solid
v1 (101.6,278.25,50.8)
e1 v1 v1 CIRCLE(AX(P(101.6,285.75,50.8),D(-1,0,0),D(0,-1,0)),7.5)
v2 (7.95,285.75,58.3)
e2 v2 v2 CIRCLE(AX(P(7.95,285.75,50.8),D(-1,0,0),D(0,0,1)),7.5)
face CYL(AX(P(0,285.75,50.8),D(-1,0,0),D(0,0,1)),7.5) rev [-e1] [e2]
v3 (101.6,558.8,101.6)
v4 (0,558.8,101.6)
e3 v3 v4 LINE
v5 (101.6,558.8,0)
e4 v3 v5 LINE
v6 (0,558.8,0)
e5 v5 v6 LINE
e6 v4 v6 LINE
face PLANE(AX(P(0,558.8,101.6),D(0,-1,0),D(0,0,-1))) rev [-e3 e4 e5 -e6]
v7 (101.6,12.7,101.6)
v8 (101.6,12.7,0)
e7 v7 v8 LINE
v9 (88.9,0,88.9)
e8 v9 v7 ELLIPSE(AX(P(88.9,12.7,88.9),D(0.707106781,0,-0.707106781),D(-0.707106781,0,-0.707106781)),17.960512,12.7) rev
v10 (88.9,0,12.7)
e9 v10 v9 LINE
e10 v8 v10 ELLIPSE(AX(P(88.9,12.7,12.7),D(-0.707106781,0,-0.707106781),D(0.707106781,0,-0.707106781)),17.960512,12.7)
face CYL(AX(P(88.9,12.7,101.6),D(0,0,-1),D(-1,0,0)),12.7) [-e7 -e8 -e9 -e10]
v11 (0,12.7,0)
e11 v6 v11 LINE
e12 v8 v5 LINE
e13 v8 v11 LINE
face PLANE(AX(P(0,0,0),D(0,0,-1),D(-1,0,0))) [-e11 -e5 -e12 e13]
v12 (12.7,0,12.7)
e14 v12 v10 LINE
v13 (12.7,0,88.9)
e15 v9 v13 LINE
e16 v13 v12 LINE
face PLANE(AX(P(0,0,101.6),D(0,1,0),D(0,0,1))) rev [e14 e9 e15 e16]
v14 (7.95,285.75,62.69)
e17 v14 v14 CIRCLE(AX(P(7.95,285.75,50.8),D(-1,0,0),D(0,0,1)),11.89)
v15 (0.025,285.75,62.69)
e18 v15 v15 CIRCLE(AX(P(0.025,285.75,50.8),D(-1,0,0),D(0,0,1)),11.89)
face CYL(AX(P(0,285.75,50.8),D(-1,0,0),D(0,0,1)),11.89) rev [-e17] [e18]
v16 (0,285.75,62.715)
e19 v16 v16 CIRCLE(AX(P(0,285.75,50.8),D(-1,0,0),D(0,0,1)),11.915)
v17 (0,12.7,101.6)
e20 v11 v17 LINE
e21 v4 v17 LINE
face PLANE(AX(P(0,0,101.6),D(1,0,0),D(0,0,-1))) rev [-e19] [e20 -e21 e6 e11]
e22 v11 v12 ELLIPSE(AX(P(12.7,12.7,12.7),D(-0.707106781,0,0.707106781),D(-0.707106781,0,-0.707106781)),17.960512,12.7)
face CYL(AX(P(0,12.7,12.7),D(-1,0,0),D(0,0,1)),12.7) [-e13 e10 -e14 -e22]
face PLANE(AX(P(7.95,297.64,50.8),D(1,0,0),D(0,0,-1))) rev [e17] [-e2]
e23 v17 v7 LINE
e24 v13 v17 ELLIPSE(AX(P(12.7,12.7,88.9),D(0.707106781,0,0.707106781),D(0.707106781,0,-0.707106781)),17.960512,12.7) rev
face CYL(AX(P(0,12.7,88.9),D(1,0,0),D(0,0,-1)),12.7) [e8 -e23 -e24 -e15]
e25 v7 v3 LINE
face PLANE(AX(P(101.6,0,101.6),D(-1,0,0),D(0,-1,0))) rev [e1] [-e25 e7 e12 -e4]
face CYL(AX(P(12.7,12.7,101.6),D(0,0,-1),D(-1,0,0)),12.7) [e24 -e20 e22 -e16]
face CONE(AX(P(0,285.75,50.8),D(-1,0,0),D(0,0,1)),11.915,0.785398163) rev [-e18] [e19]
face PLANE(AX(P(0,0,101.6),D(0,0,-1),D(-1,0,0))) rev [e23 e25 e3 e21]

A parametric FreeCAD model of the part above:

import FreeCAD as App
import Part
import Sketcher

V = App.Vector
Q = App.Units.Quantity


def edges_at(feature, points):
    """Names of the edges that pass closest to the given points."""
    edges = feature.Shape.Edges
    near = lambda p: min(range(len(edges)), key=lambda i: edges[i].distToShape(Part.Vertex(*p))[0])
    return sorted({f"Edge{near(p) + 1}" for p in points})


def add_polygon(sketch, points):
    """Adds a closed chain of lines whose ends are joined by coincident constraints."""
    first, n = sketch.GeometryCount, len(points)
    for a, b in zip(points, points[1:] + points[:1]):
        sketch.addGeometry(Part.LineSegment(App.Vector(*a, 0), App.Vector(*b, 0)), False)
    for i in range(n):
        sketch.addConstraint(Sketcher.Constraint("Coincident", first + i, 2, first + (i + 1) % n, 1))

doc = App.newDocument("Part")
params = doc.addObject("Spreadsheet::Sheet", "Params")
for row, (alias, value) in enumerate([
    ("sketch1_width", "4 in"),
    ("sketch1_height", "22 in"),
    ("pad1_length", "4 in"),
    ("fillet_radius", "0.5 in"),
    ("sketch2_width", "4 in"),
    ("groove_angle", "360 deg"),
], start=1):
    params.set(f"A{row}", alias)
    params.set(f"B{row}", "=" + value)
    params.setAlias(f"B{row}", alias)

body = doc.addObject("PartDesign::Body", "Body")

# Sketch on XY plane
sketch1 = body.newObject("Sketcher::SketchObject", "Sketch")
sketch1.AttachmentSupport = (doc.getObject("XY_Plane"), [""])
sketch1.MapMode = "FlatFace"
add_polygon(sketch1, [(0, 559), (0, 0), (102, 0), (102, 559)])  # lines 0-3
sketch1.addConstraint(Sketcher.Constraint("Vertical", 0))
sketch1.addConstraint(Sketcher.Constraint("Horizontal", 1))
sketch1.addConstraint(Sketcher.Constraint("Vertical", 2))
sketch1.addConstraint(Sketcher.Constraint("Horizontal", 3))
sketch1.addConstraint(Sketcher.Constraint("Coincident", 0, 2, -1, 1))
sketch1.addConstraint(Sketcher.Constraint("DistanceX", 1, 1, 1, 2, Q("4 in")))
sketch1.addConstraint(Sketcher.Constraint("DistanceY", 0, 2, 0, 1, Q("22 in")))
sketch1.setExpression("Constraints[9]", "Params.sketch1_width")
sketch1.setExpression("Constraints[10]", "Params.sketch1_height")
pad1 = body.newObject("PartDesign::Pad", "Pad")
pad1.Profile = sketch1
pad1.setExpression("Length", "Params.pad1_length")
doc.recompute()

fillet = body.newObject("PartDesign::Fillet", "Fillet")
fillet.Base = (pad1, edges_at(pad1, [
    (50.8, 0, 0),
    (101.6, 0, 50.8),
    (0, 0, 50.8),
    (50.8, 0, 101.6),
]))
fillet.setExpression("Radius", "Params.fillet_radius")

# Sketch on XZ plane
sketch2 = body.newObject("Sketcher::SketchObject", "Sketch001")
sketch2.AttachmentSupport = (doc.getObject("XZ_Plane"), [""])
sketch2.MapMode = "FlatFace"
sketch2.AttachmentOffset = App.Placement(V(0, 0, -11.25 * 25.4), App.Rotation())
add_polygon(sketch2, [(101.6, 50.8), (0, 50.8), (0, 62.715), (0.025, 62.69), (7.95, 62.69), (7.95, 58.3), (101.6, 58.3)])  # lines 0-6
sketch2.addGeometry(Part.LineSegment(V(0, 50.8, 0), V(101.6, 50.8, 0)), True)  # axis
sketch2.addConstraint(Sketcher.Constraint("Horizontal", 0))
sketch2.addConstraint(Sketcher.Constraint("Vertical", 1))
sketch2.addConstraint(Sketcher.Constraint("Horizontal", 3))
sketch2.addConstraint(Sketcher.Constraint("Vertical", 4))
sketch2.addConstraint(Sketcher.Constraint("Horizontal", 5))
sketch2.addConstraint(Sketcher.Constraint("Vertical", 6))
sketch2.addConstraint(Sketcher.Constraint("Horizontal", 7))
sketch2.addConstraint(Sketcher.Constraint("Coincident", 7, 1, 0, 2))
sketch2.addConstraint(Sketcher.Constraint("PointOnObject", 0, 2, -2))
sketch2.addConstraint(Sketcher.Constraint("Vertical", 5, 2, 7, 2))
sketch2.addConstraint(Sketcher.Constraint("DistanceX", 0, 2, 0, 1, Q("4 in")))
sketch2.addConstraint(Sketcher.Constraint("DistanceY", -1, 1, 0, 2, Q("2 in")))
sketch2.addConstraint(Sketcher.Constraint("Angle", 2, Q("-45 deg")))
sketch2.addConstraint(Sketcher.Constraint("DistanceX", 3, 1, 3, 2, Q("7.925 mm")))
sketch2.addConstraint(Sketcher.Constraint("DistanceX", 5, 1, 5, 2, Q("93.65 mm")))
sketch2.addConstraint(Sketcher.Constraint("DistanceY", 1, 1, 1, 2, Q("11.915 mm")))
sketch2.addConstraint(Sketcher.Constraint("DistanceY", 4, 2, 4, 1, Q("4.39 mm")))
sketch2.setExpression("Constraints[17]", "Params.sketch2_width")
groove = body.newObject("PartDesign::Groove", "Groove")
groove.Profile = sketch2
groove.ReferenceAxis = (sketch2, ["Axis0"])
groove.setExpression("Angle", "Params.groove_angle")

doc.recompute()
